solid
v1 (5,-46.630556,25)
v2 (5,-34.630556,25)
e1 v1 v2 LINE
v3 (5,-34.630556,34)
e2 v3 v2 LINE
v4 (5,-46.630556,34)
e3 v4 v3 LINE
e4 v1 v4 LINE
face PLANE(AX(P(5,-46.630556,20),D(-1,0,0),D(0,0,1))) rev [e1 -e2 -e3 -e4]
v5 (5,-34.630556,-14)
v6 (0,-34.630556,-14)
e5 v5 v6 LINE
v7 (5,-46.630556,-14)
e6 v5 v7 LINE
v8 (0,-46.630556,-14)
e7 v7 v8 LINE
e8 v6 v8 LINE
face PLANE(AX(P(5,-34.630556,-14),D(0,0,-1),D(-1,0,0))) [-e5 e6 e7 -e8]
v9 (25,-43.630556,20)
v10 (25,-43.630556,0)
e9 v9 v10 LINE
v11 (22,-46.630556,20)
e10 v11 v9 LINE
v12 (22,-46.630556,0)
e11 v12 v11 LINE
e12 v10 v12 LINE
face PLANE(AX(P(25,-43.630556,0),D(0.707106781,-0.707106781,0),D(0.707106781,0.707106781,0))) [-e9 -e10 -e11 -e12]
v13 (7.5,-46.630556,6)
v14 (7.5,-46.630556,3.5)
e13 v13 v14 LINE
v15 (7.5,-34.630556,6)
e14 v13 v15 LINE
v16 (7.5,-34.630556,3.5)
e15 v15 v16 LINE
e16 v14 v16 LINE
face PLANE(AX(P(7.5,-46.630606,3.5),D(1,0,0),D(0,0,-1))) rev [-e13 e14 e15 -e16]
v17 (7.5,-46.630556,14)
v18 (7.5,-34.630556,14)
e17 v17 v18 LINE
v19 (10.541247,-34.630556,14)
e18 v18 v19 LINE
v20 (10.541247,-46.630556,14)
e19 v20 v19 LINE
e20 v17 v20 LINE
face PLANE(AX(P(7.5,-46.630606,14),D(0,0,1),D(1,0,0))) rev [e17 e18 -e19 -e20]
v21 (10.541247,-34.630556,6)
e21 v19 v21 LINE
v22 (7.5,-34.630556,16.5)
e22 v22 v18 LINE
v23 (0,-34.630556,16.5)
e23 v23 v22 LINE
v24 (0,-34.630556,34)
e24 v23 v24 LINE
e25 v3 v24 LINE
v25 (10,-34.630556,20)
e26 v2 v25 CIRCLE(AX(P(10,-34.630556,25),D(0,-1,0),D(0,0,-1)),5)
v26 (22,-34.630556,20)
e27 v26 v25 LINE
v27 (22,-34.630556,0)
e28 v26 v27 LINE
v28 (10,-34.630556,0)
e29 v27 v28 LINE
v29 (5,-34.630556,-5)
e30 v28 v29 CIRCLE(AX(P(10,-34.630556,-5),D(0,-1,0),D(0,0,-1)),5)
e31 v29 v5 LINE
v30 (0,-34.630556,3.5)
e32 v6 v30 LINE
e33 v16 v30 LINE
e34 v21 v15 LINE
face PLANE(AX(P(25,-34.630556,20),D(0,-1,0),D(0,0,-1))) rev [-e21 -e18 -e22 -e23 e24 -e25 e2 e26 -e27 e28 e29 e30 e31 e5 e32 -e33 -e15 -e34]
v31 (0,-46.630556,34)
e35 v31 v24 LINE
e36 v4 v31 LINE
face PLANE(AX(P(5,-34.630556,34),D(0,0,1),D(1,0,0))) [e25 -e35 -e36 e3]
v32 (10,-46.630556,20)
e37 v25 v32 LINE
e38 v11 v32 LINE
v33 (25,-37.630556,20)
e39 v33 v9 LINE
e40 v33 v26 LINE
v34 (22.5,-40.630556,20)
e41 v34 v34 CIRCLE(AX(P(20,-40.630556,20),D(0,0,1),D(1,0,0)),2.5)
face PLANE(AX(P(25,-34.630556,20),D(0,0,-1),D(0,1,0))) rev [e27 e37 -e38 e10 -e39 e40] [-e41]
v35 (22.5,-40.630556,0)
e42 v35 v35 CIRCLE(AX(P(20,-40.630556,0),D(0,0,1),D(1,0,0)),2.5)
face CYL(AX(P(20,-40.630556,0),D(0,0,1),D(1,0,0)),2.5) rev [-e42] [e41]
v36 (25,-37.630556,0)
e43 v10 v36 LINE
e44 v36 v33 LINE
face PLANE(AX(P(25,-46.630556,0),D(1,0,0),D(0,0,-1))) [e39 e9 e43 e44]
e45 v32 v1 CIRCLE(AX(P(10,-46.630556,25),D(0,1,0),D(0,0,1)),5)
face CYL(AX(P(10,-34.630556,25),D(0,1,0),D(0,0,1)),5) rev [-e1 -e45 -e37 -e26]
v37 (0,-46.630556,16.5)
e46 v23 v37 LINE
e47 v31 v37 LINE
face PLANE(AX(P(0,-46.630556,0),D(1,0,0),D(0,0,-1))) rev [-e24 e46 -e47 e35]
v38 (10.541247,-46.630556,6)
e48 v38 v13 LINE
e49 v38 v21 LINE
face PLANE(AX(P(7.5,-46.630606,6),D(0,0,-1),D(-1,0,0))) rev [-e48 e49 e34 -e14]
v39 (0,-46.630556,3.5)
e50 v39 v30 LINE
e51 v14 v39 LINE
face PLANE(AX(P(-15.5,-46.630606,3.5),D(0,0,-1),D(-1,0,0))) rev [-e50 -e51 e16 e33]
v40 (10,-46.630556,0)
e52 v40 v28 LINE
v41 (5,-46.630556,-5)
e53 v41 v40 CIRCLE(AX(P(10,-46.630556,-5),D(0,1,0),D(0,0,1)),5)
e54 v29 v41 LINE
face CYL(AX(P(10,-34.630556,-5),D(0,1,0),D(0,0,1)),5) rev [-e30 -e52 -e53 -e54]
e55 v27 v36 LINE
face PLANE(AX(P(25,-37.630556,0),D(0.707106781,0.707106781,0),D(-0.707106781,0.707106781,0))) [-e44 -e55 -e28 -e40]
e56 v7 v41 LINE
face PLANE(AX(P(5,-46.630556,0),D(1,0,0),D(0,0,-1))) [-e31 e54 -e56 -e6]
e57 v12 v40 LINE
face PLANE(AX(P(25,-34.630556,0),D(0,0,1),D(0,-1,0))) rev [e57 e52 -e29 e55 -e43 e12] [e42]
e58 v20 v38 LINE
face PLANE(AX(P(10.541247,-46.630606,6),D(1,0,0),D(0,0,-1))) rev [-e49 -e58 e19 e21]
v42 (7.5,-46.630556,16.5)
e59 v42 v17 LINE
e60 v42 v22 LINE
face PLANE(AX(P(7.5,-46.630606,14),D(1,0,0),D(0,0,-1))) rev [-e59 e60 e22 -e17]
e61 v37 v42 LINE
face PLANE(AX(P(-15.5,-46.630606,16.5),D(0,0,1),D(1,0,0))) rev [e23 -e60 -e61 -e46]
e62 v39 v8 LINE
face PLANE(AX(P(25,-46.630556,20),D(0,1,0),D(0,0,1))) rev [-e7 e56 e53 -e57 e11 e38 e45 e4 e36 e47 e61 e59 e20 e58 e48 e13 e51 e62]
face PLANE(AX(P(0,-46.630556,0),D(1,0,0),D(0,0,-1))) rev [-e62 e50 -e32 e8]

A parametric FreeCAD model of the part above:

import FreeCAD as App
import Part
import Sketcher
from FreeCAD import Vector
Q = App.Units.Quantity


def edges_at(feature, points):
    """Names of the edges that pass closest to the given points."""
    edges = feature.Shape.Edges
    near = lambda p: min(range(len(edges)), key=lambda i: edges[i].distToShape(Part.Vertex(*p))[0])
    return sorted({f"Edge{near(p) + 1}" for p in points})


def add_polygon(sketch, points):
    """Adds a closed chain of lines whose ends are joined by coincident constraints."""
    first, n = sketch.GeometryCount, len(points)
    for a, b in zip(points, points[1:] + points[:1]):
        sketch.addGeometry(Part.LineSegment(App.Vector(*a, 0), App.Vector(*b, 0)), False)
    for i in range(n):
        sketch.addConstraint(Sketcher.Constraint("Coincident", first + i, 2, first + (i + 1) % n, 1))

doc = App.newDocument("Part")
body = doc.addObject("PartDesign::Body", "Body")

sketch1 = body.newObject("Sketcher::SketchObject", "Sketch")
sketch1.AttachmentSupport = (doc.getObject("YZ_Plane"), [""])
sketch1.MapMode = "FlatFace"
add_polygon(sketch1, [(-35, 20), (-47, 20), (-47, 0), (-35, 0)])
sketch1.addConstraint([
    Sketcher.Constraint("Horizontal", 0),
    Sketcher.Constraint("Vertical", 1),
    Sketcher.Constraint("Horizontal", 2),
    Sketcher.Constraint("Vertical", 3),
    Sketcher.Constraint("PointOnObject", 1, 2, -1),
    Sketcher.Constraint("DistanceX", 0, 2, 0, 1, Q("12 mm")),
    Sketcher.Constraint("DistanceY", 1, 2, 1, 1, Q("20 mm")),
    Sketcher.Constraint("DistanceX", 0, 2, -1, 1, Q("46.630556 mm")),
])
pad1 = body.newObject("PartDesign::Pad", "Pad")
pad1.Profile = sketch1
pad1.Length = 25

sketch2 = body.newObject("Sketcher::SketchObject", "Sketch001")
sketch2.AttachmentSupport = (doc.getObject("XY_Plane"), [""])
sketch2.MapMode = "FlatFace"
sketch2.AttachmentOffset = App.Placement(Vector(0, 0, 20), App.Rotation())
sketch2.addGeometry(Part.Circle(Vector(20, -40.6, 0), Vector(0, 0, 1), 2.5), False)
sketch2.addConstraint([
    Sketcher.Constraint("Diameter", 0, Q("5 mm")),
    Sketcher.Constraint("DistanceX", -1, 1, 0, 3, Q("20 mm")),
    Sketcher.Constraint("DistanceY", 0, 3, -1, 1, Q("40.630556 mm")),
])
pocket1 = body.newObject("PartDesign::Pocket", "Pocket")
pocket1.Profile = sketch2
pocket1.Type = "ThroughAll"

sketch3 = body.newObject("Sketcher::SketchObject", "Sketch002")
sketch3.AttachmentSupport = (doc.getObject("YZ_Plane"), [""])
sketch3.MapMode = "FlatFace"
add_polygon(sketch3, [(-35, 20), (-47, 20), (-47, 34), (-35, 34)])
add_polygon(sketch3, [(-35, -14), (-47, -14), (-47, 0), (-35, 0)])
sketch3.addConstraint([
    Sketcher.Constraint("Horizontal", 0),
    Sketcher.Constraint("Vertical", 1),
    Sketcher.Constraint("Horizontal", 2),
    Sketcher.Constraint("Vertical", 3),
    Sketcher.Constraint("Horizontal", 4),
    Sketcher.Constraint("Vertical", 5),
    Sketcher.Constraint("Horizontal", 6),
    Sketcher.Constraint("Vertical", 7),
    Sketcher.Constraint("PointOnObject", 5, 2, -1),
    Sketcher.Constraint("Vertical", 1, 2, 4, 2),
    Sketcher.Constraint("Vertical", 3, 2, 6, 2),
    Sketcher.Constraint("Equal", 3, 5),
    Sketcher.Constraint("DistanceX", 0, 2, 0, 1, Q("12 mm")),
    Sketcher.Constraint("DistanceY", 1, 1, 1, 2, Q("14 mm")),
    Sketcher.Constraint("DistanceY", -1, 1, 0, 2, Q("20 mm")),
    Sketcher.Constraint("DistanceX", 0, 2, -1, 1, Q("46.630556 mm")),
])
pad2 = body.newObject("PartDesign::Pad", "Pad001")
pad2.Profile = sketch3
pad2.Length = 5
doc.recompute()

chamfer = body.newObject("PartDesign::Chamfer", "Chamfer")
chamfer.Base = (pad2, edges_at(pad2, [(25, -46.631, 10), (25, -34.631, 10)]))
chamfer.Size = 3

sketch4 = body.newObject("Sketcher::SketchObject", "Sketch003")
sketch4.AttachmentSupport = (doc.getObject("XZ_Plane"), [""])
sketch4.MapMode = "FlatFace"
sketch4.AttachmentOffset = App.Placement(Vector(0, 0, 34.630556), App.Rotation())
add_polygon(sketch4, [(7.5, 3.5), (-15.5, 3.5), (-15.5, 16.5), (7.5, 16.5), (7.5, 14), (10.5, 14), (10.5, 6), (7.5, 6)])
sketch4.addConstraint([
    Sketcher.Constraint("Horizontal", 0),
    Sketcher.Constraint("Vertical", 1),
    Sketcher.Constraint("Horizontal", 2),
    Sketcher.Constraint("Vertical", 3),
    Sketcher.Constraint("Horizontal", 4),
    Sketcher.Constraint("Vertical", 5),
    Sketcher.Constraint("Horizontal", 6),
    Sketcher.Constraint("Vertical", 7),
    Sketcher.Constraint("Vertical", 3, 2, 6, 2),
    Sketcher.Constraint("Equal", 3, 7),
    Sketcher.Constraint("DistanceX", 0, 2, 0, 1, Q("23 mm")),
    Sketcher.Constraint("DistanceY", 1, 1, 1, 2, Q("13 mm")),
    Sketcher.Constraint("DistanceY", 5, 2, 5, 1, Q("8 mm")),
    Sketcher.Constraint("DistanceY", -1, 1, 3, 2, Q("14 mm")),
    Sketcher.Constraint("DistanceX", 0, 2, -1, 1, Q("15.5 mm")),
    Sketcher.Constraint("DistanceX", 4, 1, 4, 2, Q("3.041247 mm")),
])
pocket2 = body.newObject("PartDesign::Pocket", "Pocket001")
pocket2.Profile = sketch4
pocket2.Type = "ThroughAll"
pocket2.Reversed = True
doc.recompute()

fillet = body.newObject("PartDesign::Fillet", "Fillet")
fillet.Base = (pocket2, edges_at(pocket2, [(5, -40.631, 0), (5, -40.631, 20)]))
fillet.Radius = 5

doc.recompute()
